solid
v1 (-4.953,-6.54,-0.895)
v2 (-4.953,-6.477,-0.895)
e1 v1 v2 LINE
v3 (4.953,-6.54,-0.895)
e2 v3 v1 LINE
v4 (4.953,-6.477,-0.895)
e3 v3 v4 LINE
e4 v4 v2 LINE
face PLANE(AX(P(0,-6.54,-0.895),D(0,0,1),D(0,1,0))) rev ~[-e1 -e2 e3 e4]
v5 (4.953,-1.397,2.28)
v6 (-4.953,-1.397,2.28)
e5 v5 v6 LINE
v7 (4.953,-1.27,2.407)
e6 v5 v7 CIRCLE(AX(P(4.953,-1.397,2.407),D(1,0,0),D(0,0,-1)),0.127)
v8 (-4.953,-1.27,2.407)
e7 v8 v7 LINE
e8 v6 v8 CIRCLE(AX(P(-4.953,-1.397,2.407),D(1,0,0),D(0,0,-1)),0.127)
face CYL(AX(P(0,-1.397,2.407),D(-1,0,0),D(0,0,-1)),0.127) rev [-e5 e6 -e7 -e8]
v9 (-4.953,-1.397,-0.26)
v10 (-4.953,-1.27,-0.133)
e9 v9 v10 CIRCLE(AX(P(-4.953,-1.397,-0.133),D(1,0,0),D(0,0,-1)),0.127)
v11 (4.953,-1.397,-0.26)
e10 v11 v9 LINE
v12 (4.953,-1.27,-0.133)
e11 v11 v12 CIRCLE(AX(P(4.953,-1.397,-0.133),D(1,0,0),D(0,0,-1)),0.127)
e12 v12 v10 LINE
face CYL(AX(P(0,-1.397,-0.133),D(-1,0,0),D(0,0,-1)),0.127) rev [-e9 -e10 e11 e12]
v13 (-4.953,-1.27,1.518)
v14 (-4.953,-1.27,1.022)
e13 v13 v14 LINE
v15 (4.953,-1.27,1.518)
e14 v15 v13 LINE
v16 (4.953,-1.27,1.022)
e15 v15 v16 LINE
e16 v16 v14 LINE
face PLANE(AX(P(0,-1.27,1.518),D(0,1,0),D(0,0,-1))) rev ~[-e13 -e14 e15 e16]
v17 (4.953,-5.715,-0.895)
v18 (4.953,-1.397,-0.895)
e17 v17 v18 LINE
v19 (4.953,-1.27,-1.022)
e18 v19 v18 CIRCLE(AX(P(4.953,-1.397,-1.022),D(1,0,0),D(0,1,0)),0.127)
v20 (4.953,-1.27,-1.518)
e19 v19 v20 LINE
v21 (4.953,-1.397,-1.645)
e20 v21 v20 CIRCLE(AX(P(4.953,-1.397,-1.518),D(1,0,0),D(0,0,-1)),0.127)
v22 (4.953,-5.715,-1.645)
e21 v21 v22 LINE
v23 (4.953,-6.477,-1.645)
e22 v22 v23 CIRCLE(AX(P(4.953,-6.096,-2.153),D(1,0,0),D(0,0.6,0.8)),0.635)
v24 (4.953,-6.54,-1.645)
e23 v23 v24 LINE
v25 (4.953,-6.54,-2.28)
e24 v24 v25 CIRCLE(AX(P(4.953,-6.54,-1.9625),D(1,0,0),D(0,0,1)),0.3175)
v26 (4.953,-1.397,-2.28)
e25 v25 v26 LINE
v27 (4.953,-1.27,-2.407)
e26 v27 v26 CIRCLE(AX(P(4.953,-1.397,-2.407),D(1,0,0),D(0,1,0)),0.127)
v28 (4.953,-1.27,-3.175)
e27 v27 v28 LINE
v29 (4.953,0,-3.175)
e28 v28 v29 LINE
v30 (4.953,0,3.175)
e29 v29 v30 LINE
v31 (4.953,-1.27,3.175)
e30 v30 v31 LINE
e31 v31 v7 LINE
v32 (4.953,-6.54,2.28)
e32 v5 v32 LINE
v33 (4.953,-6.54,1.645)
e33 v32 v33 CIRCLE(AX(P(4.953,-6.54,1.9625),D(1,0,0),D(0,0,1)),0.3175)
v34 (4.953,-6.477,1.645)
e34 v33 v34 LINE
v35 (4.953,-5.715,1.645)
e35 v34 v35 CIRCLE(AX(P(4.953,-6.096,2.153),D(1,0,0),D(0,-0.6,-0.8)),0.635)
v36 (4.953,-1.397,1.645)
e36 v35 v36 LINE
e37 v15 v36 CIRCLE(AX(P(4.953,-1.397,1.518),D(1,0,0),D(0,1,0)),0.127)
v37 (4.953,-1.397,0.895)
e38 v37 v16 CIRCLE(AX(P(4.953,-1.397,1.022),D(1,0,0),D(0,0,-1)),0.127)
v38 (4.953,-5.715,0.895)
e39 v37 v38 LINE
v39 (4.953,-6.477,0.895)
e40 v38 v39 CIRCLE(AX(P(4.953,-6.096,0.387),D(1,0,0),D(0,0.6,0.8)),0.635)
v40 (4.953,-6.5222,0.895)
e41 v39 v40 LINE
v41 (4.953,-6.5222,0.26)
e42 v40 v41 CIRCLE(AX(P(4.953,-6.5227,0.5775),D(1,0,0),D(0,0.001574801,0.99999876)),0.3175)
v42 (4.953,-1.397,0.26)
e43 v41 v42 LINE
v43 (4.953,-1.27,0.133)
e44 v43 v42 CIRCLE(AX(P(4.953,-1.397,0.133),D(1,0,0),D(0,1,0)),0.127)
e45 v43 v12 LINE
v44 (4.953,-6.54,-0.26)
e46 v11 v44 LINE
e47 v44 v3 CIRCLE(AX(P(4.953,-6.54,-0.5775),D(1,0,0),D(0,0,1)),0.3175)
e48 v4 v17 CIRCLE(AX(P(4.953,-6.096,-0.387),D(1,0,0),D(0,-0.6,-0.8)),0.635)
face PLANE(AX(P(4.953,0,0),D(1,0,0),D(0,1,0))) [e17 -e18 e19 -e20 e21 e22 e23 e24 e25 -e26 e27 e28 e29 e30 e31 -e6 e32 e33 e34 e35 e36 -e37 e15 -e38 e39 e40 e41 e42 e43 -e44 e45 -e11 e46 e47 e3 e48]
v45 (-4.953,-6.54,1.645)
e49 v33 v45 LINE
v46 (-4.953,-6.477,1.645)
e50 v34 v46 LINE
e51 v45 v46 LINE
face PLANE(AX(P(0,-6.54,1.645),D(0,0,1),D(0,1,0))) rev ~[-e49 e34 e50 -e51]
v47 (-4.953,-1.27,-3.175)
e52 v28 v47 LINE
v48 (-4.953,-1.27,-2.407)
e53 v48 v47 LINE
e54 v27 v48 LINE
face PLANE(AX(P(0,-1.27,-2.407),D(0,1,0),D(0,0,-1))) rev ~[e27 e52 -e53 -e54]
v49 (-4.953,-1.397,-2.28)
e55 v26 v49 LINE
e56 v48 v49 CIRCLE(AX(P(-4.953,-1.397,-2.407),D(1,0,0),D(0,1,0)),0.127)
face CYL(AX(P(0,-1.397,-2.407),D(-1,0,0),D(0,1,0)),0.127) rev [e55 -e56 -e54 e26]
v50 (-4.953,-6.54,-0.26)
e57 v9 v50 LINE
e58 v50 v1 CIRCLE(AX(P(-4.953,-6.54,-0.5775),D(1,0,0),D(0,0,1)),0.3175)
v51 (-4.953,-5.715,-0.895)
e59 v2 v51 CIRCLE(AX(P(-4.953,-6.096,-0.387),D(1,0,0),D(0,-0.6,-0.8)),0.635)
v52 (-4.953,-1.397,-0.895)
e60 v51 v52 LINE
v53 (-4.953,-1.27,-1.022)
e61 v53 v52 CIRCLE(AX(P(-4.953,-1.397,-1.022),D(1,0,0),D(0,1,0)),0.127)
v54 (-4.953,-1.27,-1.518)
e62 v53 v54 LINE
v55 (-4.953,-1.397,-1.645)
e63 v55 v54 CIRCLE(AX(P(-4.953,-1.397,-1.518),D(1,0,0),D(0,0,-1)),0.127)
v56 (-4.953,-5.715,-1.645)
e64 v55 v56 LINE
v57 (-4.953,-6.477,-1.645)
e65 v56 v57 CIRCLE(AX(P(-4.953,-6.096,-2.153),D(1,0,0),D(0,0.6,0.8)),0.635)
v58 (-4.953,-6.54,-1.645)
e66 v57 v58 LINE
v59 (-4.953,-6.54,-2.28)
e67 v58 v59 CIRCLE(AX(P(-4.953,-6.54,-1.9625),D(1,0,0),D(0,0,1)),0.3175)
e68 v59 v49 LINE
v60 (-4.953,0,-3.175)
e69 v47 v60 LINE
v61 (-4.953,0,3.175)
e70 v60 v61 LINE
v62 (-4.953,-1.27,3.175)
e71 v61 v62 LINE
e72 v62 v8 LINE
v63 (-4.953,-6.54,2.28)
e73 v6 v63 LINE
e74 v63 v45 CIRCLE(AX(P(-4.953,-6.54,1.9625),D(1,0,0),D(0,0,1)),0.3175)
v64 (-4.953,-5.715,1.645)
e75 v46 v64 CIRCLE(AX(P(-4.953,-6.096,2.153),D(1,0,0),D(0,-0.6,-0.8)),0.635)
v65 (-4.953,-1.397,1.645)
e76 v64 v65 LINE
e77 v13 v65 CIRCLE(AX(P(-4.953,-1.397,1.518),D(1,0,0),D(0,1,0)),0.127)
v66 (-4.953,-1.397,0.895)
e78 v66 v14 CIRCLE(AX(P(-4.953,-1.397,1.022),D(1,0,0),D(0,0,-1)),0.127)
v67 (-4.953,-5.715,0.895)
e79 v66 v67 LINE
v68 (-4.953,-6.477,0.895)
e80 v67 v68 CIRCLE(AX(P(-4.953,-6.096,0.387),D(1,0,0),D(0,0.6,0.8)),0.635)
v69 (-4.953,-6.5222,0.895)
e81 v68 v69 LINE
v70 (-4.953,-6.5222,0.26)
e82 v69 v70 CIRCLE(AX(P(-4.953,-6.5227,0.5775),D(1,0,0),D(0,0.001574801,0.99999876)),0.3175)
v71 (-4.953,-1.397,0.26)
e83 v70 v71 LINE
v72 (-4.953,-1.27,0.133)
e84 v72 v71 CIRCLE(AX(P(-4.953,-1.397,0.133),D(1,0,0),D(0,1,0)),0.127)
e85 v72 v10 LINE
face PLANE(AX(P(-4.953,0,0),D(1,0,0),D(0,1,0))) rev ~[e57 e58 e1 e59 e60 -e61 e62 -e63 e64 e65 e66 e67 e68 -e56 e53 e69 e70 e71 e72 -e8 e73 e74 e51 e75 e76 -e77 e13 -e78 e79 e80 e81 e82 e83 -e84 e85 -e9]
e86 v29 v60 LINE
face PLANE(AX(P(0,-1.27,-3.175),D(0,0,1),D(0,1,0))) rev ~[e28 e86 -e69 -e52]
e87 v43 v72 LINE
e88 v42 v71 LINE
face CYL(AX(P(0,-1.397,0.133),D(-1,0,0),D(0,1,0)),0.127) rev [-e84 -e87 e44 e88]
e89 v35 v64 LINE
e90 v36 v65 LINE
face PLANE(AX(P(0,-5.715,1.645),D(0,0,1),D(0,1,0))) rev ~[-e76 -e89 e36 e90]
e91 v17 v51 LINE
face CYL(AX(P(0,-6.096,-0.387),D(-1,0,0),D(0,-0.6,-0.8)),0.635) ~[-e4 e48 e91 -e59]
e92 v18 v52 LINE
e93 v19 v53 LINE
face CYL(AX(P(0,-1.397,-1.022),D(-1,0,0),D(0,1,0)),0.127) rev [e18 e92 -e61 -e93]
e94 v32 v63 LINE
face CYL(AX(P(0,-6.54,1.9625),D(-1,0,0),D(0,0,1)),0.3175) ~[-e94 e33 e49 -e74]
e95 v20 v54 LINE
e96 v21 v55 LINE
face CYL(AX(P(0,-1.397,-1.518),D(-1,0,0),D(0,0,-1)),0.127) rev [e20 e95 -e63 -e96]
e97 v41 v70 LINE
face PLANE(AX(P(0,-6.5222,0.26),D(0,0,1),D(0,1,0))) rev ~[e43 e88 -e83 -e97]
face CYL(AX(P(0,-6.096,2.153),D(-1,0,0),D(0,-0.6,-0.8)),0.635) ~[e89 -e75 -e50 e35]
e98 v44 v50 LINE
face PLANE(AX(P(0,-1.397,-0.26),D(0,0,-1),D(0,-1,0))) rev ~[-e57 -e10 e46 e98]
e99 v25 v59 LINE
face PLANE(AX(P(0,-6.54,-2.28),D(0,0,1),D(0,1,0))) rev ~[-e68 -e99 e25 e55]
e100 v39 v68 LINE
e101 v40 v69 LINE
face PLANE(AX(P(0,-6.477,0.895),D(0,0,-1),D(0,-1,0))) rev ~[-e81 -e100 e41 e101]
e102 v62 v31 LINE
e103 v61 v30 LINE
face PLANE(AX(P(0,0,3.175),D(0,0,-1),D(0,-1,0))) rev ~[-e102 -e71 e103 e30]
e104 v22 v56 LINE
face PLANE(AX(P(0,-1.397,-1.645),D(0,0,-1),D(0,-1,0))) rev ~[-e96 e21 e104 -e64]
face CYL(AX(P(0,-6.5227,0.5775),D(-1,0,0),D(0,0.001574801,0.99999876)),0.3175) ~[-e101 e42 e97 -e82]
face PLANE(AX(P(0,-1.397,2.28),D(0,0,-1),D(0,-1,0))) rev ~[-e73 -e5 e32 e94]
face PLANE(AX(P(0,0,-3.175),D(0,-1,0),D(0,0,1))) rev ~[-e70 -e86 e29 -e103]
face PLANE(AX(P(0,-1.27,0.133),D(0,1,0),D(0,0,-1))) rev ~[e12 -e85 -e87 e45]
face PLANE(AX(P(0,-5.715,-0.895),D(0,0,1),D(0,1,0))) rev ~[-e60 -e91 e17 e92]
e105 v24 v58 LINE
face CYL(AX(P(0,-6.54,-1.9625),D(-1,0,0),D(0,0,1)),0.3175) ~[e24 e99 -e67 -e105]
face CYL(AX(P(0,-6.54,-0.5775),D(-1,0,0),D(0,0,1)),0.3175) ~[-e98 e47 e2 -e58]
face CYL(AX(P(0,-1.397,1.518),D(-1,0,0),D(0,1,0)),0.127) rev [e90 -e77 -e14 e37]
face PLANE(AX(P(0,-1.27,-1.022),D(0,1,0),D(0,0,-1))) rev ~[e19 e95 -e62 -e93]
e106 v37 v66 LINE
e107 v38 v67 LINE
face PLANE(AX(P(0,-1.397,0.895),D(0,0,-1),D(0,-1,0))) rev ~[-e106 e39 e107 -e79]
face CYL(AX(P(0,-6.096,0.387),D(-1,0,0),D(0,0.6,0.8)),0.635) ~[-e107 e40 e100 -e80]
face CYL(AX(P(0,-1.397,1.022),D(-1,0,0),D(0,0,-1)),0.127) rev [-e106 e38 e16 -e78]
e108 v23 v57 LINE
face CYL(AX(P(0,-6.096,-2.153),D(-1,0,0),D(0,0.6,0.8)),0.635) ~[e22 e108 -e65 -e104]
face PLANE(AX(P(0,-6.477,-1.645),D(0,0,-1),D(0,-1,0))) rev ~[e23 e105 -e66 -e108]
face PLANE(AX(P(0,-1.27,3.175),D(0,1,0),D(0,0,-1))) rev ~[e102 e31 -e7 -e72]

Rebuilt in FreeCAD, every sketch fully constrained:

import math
import FreeCAD as App
import Part
import Sketcher

V = App.Vector
Q = App.Units.Quantity

doc = App.newDocument("Part")
params = doc.addObject("Spreadsheet::Sheet", "Params")
for row, (alias, value) in enumerate([
    ("sketch1_radius", "0.005 in"),
    ("sketch1_radius2", "0.025 in"),
    ("sketch1_width", "0.05 in"),
    ("sketch1_width2", "0.17 in"),
    ("sketch1_height", "0.25 in"),
    ("pad1_length", "0.39 in"),
], start=1):
    params.set(f"A{row}", alias)
    params.set(f"B{row}", "=" + value)
    params.setAlias(f"B{row}", alias)

body = doc.addObject("PartDesign::Body", "Body")

sketch1 = body.newObject("Sketcher::SketchObject", "Sketch")
sketch1.AttachmentSupport = (doc.getObject("YZ_Plane"), [""])
sketch1.MapMode = "FlatFace"
sketch1.addGeometry(Part.LineSegment(V(0, -3.175, 0), V(0, 3.175, 0)), False)
sketch1.addGeometry(Part.LineSegment(V(0, 3.175, 0), V(-1.27, 3.175, 0)), False)
sketch1.addGeometry(Part.LineSegment(V(-1.27, 3.175, 0), V(-1.27, 2.407, 0)), False)
sketch1.addGeometry(Part.ArcOfCircle(Part.Circle(V(-1.397, 2.407, 0), V(0, 0, 1), 0.127), math.radians(-90), math.radians(0)), False)
sketch1.addGeometry(Part.LineSegment(V(-1.397, 2.28, 0), V(-6.54, 2.28, 0)), False)
sketch1.addGeometry(Part.ArcOfCircle(Part.Circle(V(-6.54, 1.962, 0), V(0, 0, 1), 0.317), math.radians(90), math.radians(270)), False)
sketch1.addGeometry(Part.LineSegment(V(-6.54, 1.645, 0), V(-6.477, 1.645, 0)), False)
sketch1.addGeometry(Part.ArcOfCircle(Part.Circle(V(-6.096, 2.153, 0), V(0, 0, 1), 0.635), math.radians(-127), math.radians(-53)), False)
sketch1.addGeometry(Part.LineSegment(V(-5.715, 1.645, 0), V(-1.397, 1.645, 0)), False)
sketch1.addGeometry(Part.ArcOfCircle(Part.Circle(V(-1.397, 1.518, 0), V(0, 0, 1), 0.127), math.radians(0), math.radians(90)), False)
sketch1.addGeometry(Part.LineSegment(V(-1.27, 1.518, 0), V(-1.27, 1.022, 0)), False)
sketch1.addGeometry(Part.ArcOfCircle(Part.Circle(V(-1.397, 1.022, 0), V(0, 0, 1), 0.127), math.radians(-90), math.radians(0)), False)
sketch1.addGeometry(Part.LineSegment(V(-1.397, 0.895, 0), V(-5.715, 0.895, 0)), False)
sketch1.addGeometry(Part.ArcOfCircle(Part.Circle(V(-6.096, 0.387, 0), V(0, 0, 1), 0.635), math.radians(53), math.radians(127)), False)
sketch1.addGeometry(Part.LineSegment(V(-6.477, 0.895, 0), V(-6.522, 0.895, 0)), False)
sketch1.addGeometry(Part.ArcOfCircle(Part.Circle(V(-6.523, 0.578, 0), V(0, 0, 1), 0.318), math.radians(90), math.radians(270)), False)
sketch1.addGeometry(Part.LineSegment(V(-6.522, 0.26, 0), V(-1.397, 0.26, 0)), False)
sketch1.addGeometry(Part.ArcOfCircle(Part.Circle(V(-1.397, 0.133, 0), V(0, 0, 1), 0.127), math.radians(0), math.radians(90)), False)
sketch1.addGeometry(Part.LineSegment(V(-1.27, 0.133, 0), V(-1.27, -0.133, 0)), False)
sketch1.addGeometry(Part.ArcOfCircle(Part.Circle(V(-1.397, -0.133, 0), V(0, 0, 1), 0.127), math.radians(-90), math.radians(0)), False)
sketch1.addGeometry(Part.LineSegment(V(-1.397, -0.26, 0), V(-6.54, -0.26, 0)), False)
sketch1.addGeometry(Part.ArcOfCircle(Part.Circle(V(-6.54, -0.578, 0), V(0, 0, 1), 0.318), math.radians(90), math.radians(270)), False)
sketch1.addGeometry(Part.LineSegment(V(-6.54, -0.895, 0), V(-6.477, -0.895, 0)), False)
sketch1.addGeometry(Part.ArcOfCircle(Part.Circle(V(-6.096, -0.387, 0), V(0, 0, 1), 0.635), math.radians(-127), math.radians(-53)), False)
sketch1.addGeometry(Part.LineSegment(V(-5.715, -0.895, 0), V(-1.397, -0.895, 0)), False)
sketch1.addGeometry(Part.ArcOfCircle(Part.Circle(V(-1.397, -1.022, 0), V(0, 0, 1), 0.127), math.radians(0), math.radians(90)), False)
sketch1.addGeometry(Part.LineSegment(V(-1.27, -1.022, 0), V(-1.27, -1.518, 0)), False)
sketch1.addGeometry(Part.ArcOfCircle(Part.Circle(V(-1.397, -1.518, 0), V(0, 0, 1), 0.127), math.radians(-90), math.radians(0)), False)
sketch1.addGeometry(Part.LineSegment(V(-1.397, -1.645, 0), V(-5.715, -1.645, 0)), False)
sketch1.addGeometry(Part.ArcOfCircle(Part.Circle(V(-6.096, -2.153, 0), V(0, 0, 1), 0.635), math.radians(53), math.radians(127)), False)
sketch1.addGeometry(Part.LineSegment(V(-6.477, -1.645, 0), V(-6.54, -1.645, 0)), False)
sketch1.addGeometry(Part.ArcOfCircle(Part.Circle(V(-6.54, -1.962, 0), V(0, 0, 1), 0.317), math.radians(90), math.radians(270)), False)
sketch1.addGeometry(Part.LineSegment(V(-6.54, -2.28, 0), V(-1.397, -2.28, 0)), False)
sketch1.addGeometry(Part.ArcOfCircle(Part.Circle(V(-1.397, -2.407, 0), V(0, 0, 1), 0.127), math.radians(0), math.radians(90)), False)
sketch1.addGeometry(Part.LineSegment(V(-1.27, -2.407, 0), V(-1.27, -3.175, 0)), False)
sketch1.addGeometry(Part.LineSegment(V(-1.27, -3.175, 0), V(0, -3.175, 0)), False)
sketch1.addConstraint(Sketcher.Constraint("Coincident", 0, 2, 1, 1))
sketch1.addConstraint(Sketcher.Constraint("Coincident", 1, 2, 2, 1))
sketch1.addConstraint(Sketcher.Constraint("Tangent", 2, 2, 3, 2))
sketch1.addConstraint(Sketcher.Constraint("Tangent", 3, 1, 4, 1))
sketch1.addConstraint(Sketcher.Constraint("Tangent", 4, 2, 5, 1))
sketch1.addConstraint(Sketcher.Constraint("Tangent", 5, 2, 6, 1))
sketch1.addConstraint(Sketcher.Constraint("Coincident", 6, 2, 7, 1))
sketch1.addConstraint(Sketcher.Constraint("Coincident", 7, 2, 8, 1))
sketch1.addConstraint(Sketcher.Constraint("Tangent", 8, 2, 9, 2))
sketch1.addConstraint(Sketcher.Constraint("Tangent", 9, 1, 10, 1))
sketch1.addConstraint(Sketcher.Constraint("Tangent", 10, 2, 11, 2))
sketch1.addConstraint(Sketcher.Constraint("Tangent", 11, 1, 12, 1))
sketch1.addConstraint(Sketcher.Constraint("Coincident", 12, 2, 13, 1))
sketch1.addConstraint(Sketcher.Constraint("Coincident", 13, 2, 14, 1))
sketch1.addConstraint(Sketcher.Constraint("Coincident", 14, 2, 15, 1))
sketch1.addConstraint(Sketcher.Constraint("Coincident", 15, 2, 16, 1))
sketch1.addConstraint(Sketcher.Constraint("Tangent", 16, 2, 17, 2))
sketch1.addConstraint(Sketcher.Constraint("Tangent", 17, 1, 18, 1))
sketch1.addConstraint(Sketcher.Constraint("Tangent", 18, 2, 19, 2))
sketch1.addConstraint(Sketcher.Constraint("Tangent", 19, 1, 20, 1))
sketch1.addConstraint(Sketcher.Constraint("Tangent", 20, 2, 21, 1))
sketch1.addConstraint(Sketcher.Constraint("Tangent", 21, 2, 22, 1))
sketch1.addConstraint(Sketcher.Constraint("Coincident", 22, 2, 23, 1))
sketch1.addConstraint(Sketcher.Constraint("Coincident", 23, 2, 24, 1))
sketch1.addConstraint(Sketcher.Constraint("Tangent", 24, 2, 25, 2))
sketch1.addConstraint(Sketcher.Constraint("Tangent", 25, 1, 26, 1))
sketch1.addConstraint(Sketcher.Constraint("Tangent", 26, 2, 27, 2))
sketch1.addConstraint(Sketcher.Constraint("Tangent", 27, 1, 28, 1))
sketch1.addConstraint(Sketcher.Constraint("Coincident", 28, 2, 29, 1))
sketch1.addConstraint(Sketcher.Constraint("Coincident", 29, 2, 30, 1))
sketch1.addConstraint(Sketcher.Constraint("Tangent", 30, 2, 31, 1))
sketch1.addConstraint(Sketcher.Constraint("Tangent", 31, 2, 32, 1))
sketch1.addConstraint(Sketcher.Constraint("Tangent", 32, 2, 33, 2))
sketch1.addConstraint(Sketcher.Constraint("Tangent", 33, 1, 34, 1))
sketch1.addConstraint(Sketcher.Constraint("Coincident", 34, 2, 35, 1))
sketch1.addConstraint(Sketcher.Constraint("Coincident", 35, 2, 0, 1))
sketch1.addConstraint(Sketcher.Constraint("Vertical", 0))
sketch1.addConstraint(Sketcher.Constraint("Horizontal", 1))
sketch1.addConstraint(Sketcher.Constraint("Vertical", 2))
sketch1.addConstraint(Sketcher.Constraint("Horizontal", 4))
sketch1.addConstraint(Sketcher.Constraint("Horizontal", 6))
sketch1.addConstraint(Sketcher.Constraint("Horizontal", 8))
sketch1.addConstraint(Sketcher.Constraint("Vertical", 10))
sketch1.addConstraint(Sketcher.Constraint("Horizontal", 12))
sketch1.addConstraint(Sketcher.Constraint("Horizontal", 14))
sketch1.addConstraint(Sketcher.Constraint("Horizontal", 16))
sketch1.addConstraint(Sketcher.Constraint("Vertical", 18))
sketch1.addConstraint(Sketcher.Constraint("Horizontal", 20))
sketch1.addConstraint(Sketcher.Constraint("Horizontal", 22))
sketch1.addConstraint(Sketcher.Constraint("Horizontal", 24))
sketch1.addConstraint(Sketcher.Constraint("Vertical", 26))
sketch1.addConstraint(Sketcher.Constraint("Horizontal", 28))
sketch1.addConstraint(Sketcher.Constraint("Horizontal", 30))
sketch1.addConstraint(Sketcher.Constraint("Horizontal", 32))
sketch1.addConstraint(Sketcher.Constraint("Vertical", 34))
sketch1.addConstraint(Sketcher.Constraint("Horizontal", 35))
sketch1.addConstraint(Sketcher.Constraint("Equal", 3, 9))
sketch1.addConstraint(Sketcher.Constraint("Equal", 9, 11))
sketch1.addConstraint(Sketcher.Constraint("Equal", 7, 13))
sketch1.addConstraint(Sketcher.Constraint("Equal", 5, 15))
sketch1.addConstraint(Sketcher.Constraint("Equal", 11, 17))
sketch1.addConstraint(Sketcher.Constraint("Equal", 17, 19))
sketch1.addConstraint(Sketcher.Constraint("Equal", 15, 21))
sketch1.addConstraint(Sketcher.Constraint("Equal", 13, 23))
sketch1.addConstraint(Sketcher.Constraint("Equal", 19, 25))
sketch1.addConstraint(Sketcher.Constraint("Equal", 25, 27))
sketch1.addConstraint(Sketcher.Constraint("Equal", 23, 29))
sketch1.addConstraint(Sketcher.Constraint("Equal", 21, 31))
sketch1.addConstraint(Sketcher.Constraint("Equal", 27, 33))
sketch1.addConstraint(Sketcher.Constraint("Symmetric", 0, 2, 35, 2, -1, 1))
sketch1.addConstraint(Sketcher.Constraint("Symmetric", 13, 3, 23, 3, -1))
sketch1.addConstraint(Sketcher.Constraint("Symmetric", 11, 3, 25, 3, -1))
sketch1.addConstraint(Sketcher.Constraint("Symmetric", 7, 3, 29, 3, -1))
sketch1.addConstraint(Sketcher.Constraint("Symmetric", 5, 3, 31, 3, -1))
sketch1.addConstraint(Sketcher.Constraint("Horizontal", 6, 2, 7, 2))
sketch1.addConstraint(Sketcher.Constraint("Horizontal", 12, 2, 13, 2))
sketch1.addConstraint(Sketcher.Constraint("Horizontal", 22, 2, 23, 2))
sketch1.addConstraint(Sketcher.Constraint("Horizontal", 28, 2, 29, 2))
sketch1.addConstraint(Sketcher.Constraint("Vertical", 3, 3, 9, 3))
sketch1.addConstraint(Sketcher.Constraint("Vertical", 7, 3, 13, 3))
sketch1.addConstraint(Sketcher.Constraint("Vertical", 11, 3, 17, 3))
sketch1.addConstraint(Sketcher.Constraint("Vertical", 5, 3, 21, 3))
sketch1.addConstraint(Sketcher.Constraint("Vertical", 27, 3, 33, 3))
sketch1.addConstraint(Sketcher.Constraint("Vertical", 7, 2, 12, 2))
sketch1.addConstraint(Sketcher.Constraint("Vertical", 14, 2, 15, 2))
sketch1.addConstraint(Sketcher.Constraint("Radius", 3, Q("0.005 in")))
sketch1.addConstraint(Sketcher.Constraint("Radius", 7, Q("0.025 in")))
sketch1.addConstraint(Sketcher.Constraint("DistanceX", 1, 2, 1, 1, Q("0.05 in")))
sketch1.addConstraint(Sketcher.Constraint("DistanceX", 8, 1, 8, 2, Q("0.17 in")))
sketch1.addConstraint(Sketcher.Constraint("DistanceY", 0, 1, 0, 2, Q("0.25 in")))
sketch1.addConstraint(Sketcher.Constraint("Radius", 5, Q("0.0125 in")))
sketch1.addConstraint(Sketcher.Constraint("DistanceY", 19, 3, 3, 3, Q("0.1 in")))
sketch1.addConstraint(Sketcher.Constraint("DistanceX", 7, 3, -1, 1, Q("0.24 in")))
sketch1.addConstraint(Sketcher.Constraint("DistanceX", 4, 2, 4, 1, Q("5.143 mm")))
sketch1.addConstraint(Sketcher.Constraint("DistanceX", 14, 2, 14, 1, Q("0.0452 mm")))
sketch1.addConstraint(Sketcher.Constraint("DistanceY", 2, 2, 2, 1, Q("0.768 mm")))
sketch1.addConstraint(Sketcher.Constraint("DistanceX", 15, 3, -1, 1, Q("0.2568 in")))
sketch1.setExpression("Constraints[85]", "Params.sketch1_radius")
sketch1.setExpression("Constraints[86]", "Params.sketch1_radius2")
sketch1.setExpression("Constraints[87]", "Params.sketch1_width")
sketch1.setExpression("Constraints[88]", "Params.sketch1_width2")
sketch1.setExpression("Constraints[89]", "Params.sketch1_height")
pad1 = body.newObject("PartDesign::Pad", "Pad")
pad1.Profile = sketch1
pad1.setExpression("Length", "Params.pad1_length")
pad1.Midplane = True

doc.recompute()
